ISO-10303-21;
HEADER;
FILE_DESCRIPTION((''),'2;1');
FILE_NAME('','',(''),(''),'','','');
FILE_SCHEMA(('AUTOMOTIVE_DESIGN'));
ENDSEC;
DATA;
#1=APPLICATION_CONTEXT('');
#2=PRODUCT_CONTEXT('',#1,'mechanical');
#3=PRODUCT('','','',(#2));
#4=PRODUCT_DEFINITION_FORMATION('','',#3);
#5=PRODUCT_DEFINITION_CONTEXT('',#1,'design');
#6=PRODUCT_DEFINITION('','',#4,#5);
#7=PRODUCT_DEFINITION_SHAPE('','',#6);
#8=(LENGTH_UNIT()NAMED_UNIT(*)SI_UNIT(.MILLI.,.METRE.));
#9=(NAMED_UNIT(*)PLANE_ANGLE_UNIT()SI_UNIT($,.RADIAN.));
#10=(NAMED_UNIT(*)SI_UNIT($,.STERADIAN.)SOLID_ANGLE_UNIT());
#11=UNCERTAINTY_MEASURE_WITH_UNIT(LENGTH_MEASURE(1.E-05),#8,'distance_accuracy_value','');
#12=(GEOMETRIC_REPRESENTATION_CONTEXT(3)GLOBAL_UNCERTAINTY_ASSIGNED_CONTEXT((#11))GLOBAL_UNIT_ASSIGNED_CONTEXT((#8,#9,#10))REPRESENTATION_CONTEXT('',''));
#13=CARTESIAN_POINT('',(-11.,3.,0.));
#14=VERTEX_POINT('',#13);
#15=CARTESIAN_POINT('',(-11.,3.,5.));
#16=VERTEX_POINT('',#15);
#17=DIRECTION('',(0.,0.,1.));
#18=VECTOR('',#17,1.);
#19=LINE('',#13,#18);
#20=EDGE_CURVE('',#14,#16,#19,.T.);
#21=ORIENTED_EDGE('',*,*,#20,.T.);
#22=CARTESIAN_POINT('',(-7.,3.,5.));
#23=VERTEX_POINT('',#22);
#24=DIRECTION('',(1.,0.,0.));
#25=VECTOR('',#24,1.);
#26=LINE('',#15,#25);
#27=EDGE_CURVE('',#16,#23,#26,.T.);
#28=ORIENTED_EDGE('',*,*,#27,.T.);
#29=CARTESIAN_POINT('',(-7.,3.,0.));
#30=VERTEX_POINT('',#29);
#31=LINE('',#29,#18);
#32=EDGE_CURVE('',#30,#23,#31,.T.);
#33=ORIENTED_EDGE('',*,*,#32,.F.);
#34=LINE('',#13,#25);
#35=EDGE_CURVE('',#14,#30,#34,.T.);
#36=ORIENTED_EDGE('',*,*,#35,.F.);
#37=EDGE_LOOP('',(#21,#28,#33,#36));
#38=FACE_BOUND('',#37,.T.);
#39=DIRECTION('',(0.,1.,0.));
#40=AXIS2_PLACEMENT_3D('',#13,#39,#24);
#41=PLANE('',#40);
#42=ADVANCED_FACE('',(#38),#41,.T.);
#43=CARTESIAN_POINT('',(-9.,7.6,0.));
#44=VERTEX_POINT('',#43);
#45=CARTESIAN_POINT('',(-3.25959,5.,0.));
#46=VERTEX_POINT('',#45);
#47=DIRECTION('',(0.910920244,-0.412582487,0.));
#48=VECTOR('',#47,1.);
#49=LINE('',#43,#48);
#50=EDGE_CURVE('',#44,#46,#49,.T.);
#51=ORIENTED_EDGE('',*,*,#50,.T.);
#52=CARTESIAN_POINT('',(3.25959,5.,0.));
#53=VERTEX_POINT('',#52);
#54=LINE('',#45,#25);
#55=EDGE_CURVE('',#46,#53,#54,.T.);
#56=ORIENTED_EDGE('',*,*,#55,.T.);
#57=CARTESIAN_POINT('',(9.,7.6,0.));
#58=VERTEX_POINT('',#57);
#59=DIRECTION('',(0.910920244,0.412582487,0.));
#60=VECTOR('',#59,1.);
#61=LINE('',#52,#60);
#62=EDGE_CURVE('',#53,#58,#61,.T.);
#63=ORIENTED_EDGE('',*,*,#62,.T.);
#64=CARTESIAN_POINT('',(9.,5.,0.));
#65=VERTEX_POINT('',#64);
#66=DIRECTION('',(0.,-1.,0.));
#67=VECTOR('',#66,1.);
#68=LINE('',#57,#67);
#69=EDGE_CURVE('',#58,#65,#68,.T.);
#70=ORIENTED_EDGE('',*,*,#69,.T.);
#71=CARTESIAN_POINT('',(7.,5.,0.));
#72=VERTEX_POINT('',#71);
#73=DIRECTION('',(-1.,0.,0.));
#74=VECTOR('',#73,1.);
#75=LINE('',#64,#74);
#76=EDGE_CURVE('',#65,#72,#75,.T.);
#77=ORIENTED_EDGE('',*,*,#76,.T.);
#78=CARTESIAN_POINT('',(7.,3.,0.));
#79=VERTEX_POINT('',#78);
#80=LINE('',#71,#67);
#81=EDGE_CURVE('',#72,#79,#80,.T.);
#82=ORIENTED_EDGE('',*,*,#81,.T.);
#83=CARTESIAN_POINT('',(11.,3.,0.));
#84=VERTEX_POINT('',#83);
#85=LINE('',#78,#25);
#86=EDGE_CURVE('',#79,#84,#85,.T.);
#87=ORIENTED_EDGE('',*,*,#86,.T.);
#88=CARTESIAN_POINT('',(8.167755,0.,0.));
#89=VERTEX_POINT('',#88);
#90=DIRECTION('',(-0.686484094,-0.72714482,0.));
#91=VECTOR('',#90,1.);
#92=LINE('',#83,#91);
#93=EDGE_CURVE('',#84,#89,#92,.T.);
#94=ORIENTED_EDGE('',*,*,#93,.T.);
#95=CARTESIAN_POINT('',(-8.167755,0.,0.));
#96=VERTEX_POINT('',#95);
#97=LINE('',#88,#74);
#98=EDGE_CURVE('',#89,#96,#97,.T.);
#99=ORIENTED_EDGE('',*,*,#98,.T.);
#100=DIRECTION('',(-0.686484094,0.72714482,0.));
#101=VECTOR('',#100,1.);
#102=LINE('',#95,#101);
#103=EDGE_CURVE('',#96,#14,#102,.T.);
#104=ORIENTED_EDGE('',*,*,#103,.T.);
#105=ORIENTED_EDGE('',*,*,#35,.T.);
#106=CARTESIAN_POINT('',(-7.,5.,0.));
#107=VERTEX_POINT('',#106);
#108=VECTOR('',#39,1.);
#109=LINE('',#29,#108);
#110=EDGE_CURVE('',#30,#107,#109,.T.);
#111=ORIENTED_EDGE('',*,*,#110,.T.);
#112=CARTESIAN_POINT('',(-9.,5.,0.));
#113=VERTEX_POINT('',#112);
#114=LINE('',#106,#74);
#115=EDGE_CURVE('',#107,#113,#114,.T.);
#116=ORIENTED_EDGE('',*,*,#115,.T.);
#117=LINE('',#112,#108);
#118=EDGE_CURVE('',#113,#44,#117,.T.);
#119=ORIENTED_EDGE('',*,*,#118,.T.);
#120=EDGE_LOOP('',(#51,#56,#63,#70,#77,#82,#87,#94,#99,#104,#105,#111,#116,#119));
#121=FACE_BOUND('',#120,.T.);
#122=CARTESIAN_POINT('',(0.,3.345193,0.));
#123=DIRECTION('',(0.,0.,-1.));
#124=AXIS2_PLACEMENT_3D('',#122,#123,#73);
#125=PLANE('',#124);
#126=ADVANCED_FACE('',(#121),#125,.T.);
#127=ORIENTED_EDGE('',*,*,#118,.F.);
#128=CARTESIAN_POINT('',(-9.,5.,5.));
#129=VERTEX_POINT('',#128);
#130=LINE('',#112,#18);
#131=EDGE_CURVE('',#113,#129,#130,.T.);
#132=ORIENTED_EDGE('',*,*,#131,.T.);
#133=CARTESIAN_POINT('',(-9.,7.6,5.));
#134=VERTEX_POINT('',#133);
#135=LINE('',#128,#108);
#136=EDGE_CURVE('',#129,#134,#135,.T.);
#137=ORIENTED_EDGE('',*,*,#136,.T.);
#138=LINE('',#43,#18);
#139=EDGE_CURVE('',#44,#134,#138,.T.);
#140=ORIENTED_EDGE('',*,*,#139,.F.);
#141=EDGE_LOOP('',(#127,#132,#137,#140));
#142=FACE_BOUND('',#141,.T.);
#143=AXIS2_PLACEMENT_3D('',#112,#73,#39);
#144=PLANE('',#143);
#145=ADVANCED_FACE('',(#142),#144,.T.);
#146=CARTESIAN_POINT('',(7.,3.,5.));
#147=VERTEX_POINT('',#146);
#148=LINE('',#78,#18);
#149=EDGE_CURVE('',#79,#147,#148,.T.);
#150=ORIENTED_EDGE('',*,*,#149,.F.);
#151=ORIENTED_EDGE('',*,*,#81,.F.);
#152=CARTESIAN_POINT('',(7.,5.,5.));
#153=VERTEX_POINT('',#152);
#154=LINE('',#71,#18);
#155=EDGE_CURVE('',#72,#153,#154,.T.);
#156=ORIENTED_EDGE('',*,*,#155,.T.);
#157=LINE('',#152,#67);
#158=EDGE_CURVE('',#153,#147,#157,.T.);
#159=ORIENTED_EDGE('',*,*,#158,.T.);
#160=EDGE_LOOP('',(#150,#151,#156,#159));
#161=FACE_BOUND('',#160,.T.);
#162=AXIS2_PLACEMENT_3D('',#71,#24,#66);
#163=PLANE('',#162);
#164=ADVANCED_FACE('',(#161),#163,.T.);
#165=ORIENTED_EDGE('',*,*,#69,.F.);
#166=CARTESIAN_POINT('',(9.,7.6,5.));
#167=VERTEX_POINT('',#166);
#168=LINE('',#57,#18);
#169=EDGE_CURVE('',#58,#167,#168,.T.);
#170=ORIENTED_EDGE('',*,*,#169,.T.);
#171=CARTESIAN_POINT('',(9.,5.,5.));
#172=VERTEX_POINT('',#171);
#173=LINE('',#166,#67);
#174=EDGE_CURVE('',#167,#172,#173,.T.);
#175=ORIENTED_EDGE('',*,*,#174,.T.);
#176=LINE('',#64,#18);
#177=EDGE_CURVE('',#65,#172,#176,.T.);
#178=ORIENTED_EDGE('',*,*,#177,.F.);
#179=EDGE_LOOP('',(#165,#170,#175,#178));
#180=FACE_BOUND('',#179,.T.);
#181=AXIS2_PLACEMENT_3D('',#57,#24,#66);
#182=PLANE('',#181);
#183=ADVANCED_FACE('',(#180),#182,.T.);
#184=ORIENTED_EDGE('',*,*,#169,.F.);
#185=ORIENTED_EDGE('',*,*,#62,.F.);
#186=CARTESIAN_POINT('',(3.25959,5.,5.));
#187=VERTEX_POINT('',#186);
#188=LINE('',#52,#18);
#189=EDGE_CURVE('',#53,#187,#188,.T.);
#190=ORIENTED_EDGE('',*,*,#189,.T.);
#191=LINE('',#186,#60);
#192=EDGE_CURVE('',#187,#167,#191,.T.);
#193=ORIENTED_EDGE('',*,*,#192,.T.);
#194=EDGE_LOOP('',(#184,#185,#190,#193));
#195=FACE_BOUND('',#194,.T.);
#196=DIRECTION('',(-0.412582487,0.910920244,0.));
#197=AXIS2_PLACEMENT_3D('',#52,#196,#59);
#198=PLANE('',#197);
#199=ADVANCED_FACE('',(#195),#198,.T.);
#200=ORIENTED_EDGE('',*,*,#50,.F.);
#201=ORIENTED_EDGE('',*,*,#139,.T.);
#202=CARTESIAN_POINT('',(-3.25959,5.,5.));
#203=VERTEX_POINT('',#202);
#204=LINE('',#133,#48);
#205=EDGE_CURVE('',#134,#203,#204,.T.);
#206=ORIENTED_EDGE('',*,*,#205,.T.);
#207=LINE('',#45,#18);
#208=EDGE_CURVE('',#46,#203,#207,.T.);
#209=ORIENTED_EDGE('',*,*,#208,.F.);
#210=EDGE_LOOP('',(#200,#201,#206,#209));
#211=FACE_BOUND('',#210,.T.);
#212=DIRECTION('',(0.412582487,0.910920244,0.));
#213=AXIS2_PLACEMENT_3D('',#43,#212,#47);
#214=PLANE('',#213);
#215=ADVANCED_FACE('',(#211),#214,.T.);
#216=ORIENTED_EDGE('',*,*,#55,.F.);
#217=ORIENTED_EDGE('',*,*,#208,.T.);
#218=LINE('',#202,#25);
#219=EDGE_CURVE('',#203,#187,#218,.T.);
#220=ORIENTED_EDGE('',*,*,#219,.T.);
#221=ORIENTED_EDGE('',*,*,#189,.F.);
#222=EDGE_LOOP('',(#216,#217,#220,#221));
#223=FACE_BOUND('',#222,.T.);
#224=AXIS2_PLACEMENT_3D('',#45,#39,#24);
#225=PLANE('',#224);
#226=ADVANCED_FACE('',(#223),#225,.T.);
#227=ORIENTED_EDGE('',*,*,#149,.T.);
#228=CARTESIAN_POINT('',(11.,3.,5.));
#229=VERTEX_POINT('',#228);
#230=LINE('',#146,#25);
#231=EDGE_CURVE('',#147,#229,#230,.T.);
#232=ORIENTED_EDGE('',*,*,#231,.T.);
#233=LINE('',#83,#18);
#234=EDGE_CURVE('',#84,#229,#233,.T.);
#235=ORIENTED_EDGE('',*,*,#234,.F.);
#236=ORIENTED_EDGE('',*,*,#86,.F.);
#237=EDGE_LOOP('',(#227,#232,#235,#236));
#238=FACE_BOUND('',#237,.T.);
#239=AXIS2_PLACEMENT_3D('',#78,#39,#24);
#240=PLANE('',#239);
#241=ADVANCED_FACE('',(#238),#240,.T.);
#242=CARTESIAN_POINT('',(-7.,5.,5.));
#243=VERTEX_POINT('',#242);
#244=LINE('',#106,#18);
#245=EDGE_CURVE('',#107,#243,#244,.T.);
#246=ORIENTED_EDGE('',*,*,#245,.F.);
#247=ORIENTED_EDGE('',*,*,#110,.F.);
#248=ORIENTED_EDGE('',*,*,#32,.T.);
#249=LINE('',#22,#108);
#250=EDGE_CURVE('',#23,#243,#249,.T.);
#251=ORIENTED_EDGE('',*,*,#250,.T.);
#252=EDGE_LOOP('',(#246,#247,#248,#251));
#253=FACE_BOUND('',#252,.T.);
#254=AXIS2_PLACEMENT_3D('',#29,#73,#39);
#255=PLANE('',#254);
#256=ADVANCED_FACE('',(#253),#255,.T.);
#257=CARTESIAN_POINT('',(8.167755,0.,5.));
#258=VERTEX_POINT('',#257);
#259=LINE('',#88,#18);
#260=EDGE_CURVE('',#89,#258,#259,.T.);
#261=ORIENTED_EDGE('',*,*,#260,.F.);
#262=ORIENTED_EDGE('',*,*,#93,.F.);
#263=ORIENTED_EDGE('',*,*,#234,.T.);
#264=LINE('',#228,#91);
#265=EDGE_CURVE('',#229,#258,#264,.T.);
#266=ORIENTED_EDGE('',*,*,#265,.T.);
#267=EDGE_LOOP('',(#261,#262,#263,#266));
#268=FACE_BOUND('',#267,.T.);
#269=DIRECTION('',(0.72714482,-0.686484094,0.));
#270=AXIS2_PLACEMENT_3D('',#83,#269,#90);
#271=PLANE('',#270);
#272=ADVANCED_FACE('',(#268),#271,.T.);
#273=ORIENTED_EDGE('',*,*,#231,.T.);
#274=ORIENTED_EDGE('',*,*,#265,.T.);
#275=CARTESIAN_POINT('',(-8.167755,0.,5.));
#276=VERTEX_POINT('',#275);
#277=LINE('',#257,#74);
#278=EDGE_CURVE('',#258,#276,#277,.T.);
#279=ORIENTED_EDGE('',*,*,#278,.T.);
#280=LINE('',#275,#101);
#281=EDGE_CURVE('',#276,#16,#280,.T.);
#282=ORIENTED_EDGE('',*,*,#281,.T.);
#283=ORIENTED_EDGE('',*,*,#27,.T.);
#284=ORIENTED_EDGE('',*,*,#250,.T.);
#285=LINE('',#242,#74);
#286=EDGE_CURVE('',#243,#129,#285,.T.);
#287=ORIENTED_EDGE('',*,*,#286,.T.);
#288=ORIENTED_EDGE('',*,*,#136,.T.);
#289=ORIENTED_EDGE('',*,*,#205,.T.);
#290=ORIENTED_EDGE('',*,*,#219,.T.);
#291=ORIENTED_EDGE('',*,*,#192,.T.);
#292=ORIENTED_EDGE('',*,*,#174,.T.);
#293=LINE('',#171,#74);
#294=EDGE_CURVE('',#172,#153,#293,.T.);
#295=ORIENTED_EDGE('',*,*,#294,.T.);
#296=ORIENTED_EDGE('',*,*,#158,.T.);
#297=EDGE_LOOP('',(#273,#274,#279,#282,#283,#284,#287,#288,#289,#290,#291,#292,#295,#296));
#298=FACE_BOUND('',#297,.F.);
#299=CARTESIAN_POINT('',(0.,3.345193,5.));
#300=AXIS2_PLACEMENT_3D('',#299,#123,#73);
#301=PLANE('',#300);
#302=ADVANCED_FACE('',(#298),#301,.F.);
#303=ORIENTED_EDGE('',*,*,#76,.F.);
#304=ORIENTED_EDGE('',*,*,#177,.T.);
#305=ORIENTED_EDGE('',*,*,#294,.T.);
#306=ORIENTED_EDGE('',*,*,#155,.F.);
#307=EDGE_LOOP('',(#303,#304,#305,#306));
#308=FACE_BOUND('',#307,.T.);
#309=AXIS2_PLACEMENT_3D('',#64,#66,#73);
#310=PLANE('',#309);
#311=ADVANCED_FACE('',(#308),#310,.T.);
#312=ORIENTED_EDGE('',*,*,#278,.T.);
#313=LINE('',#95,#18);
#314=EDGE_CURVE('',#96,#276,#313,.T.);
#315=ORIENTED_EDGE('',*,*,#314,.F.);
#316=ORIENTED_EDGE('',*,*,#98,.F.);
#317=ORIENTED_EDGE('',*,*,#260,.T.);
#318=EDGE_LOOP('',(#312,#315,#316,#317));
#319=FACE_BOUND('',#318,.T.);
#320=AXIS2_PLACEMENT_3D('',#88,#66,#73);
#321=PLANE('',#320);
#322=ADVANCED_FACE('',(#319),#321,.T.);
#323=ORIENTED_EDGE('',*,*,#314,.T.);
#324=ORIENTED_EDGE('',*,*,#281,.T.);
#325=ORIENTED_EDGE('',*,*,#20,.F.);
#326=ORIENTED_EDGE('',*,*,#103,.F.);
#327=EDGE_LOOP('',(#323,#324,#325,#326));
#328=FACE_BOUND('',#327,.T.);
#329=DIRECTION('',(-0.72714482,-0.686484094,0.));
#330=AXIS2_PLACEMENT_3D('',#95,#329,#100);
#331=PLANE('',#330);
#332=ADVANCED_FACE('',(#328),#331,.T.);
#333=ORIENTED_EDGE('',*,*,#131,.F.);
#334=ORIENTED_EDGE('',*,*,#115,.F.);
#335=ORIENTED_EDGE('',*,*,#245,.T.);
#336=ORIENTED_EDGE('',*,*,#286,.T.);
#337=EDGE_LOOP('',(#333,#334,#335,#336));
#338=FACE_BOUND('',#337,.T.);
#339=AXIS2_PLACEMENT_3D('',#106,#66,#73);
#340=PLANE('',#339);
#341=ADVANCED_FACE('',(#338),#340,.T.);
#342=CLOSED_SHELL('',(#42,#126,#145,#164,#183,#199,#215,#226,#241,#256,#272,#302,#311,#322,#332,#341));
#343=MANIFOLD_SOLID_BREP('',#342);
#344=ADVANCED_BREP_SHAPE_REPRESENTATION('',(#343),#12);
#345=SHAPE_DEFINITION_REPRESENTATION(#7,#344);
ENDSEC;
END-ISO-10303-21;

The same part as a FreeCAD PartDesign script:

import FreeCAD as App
import Part
import Sketcher
Q = App.Units.Quantity

doc = App.newDocument("Part")
body = doc.addObject("PartDesign::Body", "Body")

# Sketch on XY plane
sketch1 = doc.addObject("Sketcher::SketchObject", "Sketch")
body.addObject(sketch1)
sketch1.AttachmentSupport = (doc.XY_Plane, [""])
sketch1.MapMode = "FlatFace"
sketch1.addGeometry([
    Part.LineSegment(App.Vector(9, 5, 0), App.Vector(9, 7.6, 0)),  # 0
    Part.LineSegment(App.Vector(9, 7.6, 0), App.Vector(3.25959, 5, 0)),  # 1
    Part.LineSegment(App.Vector(3.25959, 5, 0), App.Vector(-3.25959, 5, 0)),  # 2
    Part.LineSegment(App.Vector(-3.25959, 5, 0), App.Vector(-9, 7.6, 0)),  # 3
    Part.LineSegment(App.Vector(-9, 7.6, 0), App.Vector(-9, 5, 0)),  # 4
    Part.LineSegment(App.Vector(-9, 5, 0), App.Vector(-7, 5, 0)),  # 5
    Part.LineSegment(App.Vector(-7, 5, 0), App.Vector(-7, 3, 0)),  # 6
    Part.LineSegment(App.Vector(-7, 3, 0), App.Vector(-11, 3, 0)),  # 7
    Part.LineSegment(App.Vector(-11, 3, 0), App.Vector(-8.167755, 0, 0)),  # 8
    Part.LineSegment(App.Vector(-8.167755, 0, 0), App.Vector(8.167755, 0, 0)),  # 9
    Part.LineSegment(App.Vector(8.167755, 0, 0), App.Vector(11, 3, 0)),  # 10
    Part.LineSegment(App.Vector(11, 3, 0), App.Vector(7, 3, 0)),  # 11
    Part.LineSegment(App.Vector(7, 3, 0), App.Vector(7, 5, 0)),  # 12
    Part.LineSegment(App.Vector(7, 5, 0), App.Vector(9, 5, 0)),  # 13
], False)
sketch1.addConstraint([
    Sketcher.Constraint("Coincident", 0, 2, 1, 1),
    Sketcher.Constraint("Coincident", 1, 2, 2, 1),
    Sketcher.Constraint("Coincident", 2, 2, 3, 1),
    Sketcher.Constraint("Coincident", 3, 2, 4, 1),
    Sketcher.Constraint("Coincident", 4, 2, 5, 1),
    Sketcher.Constraint("Coincident", 5, 2, 6, 1),
    Sketcher.Constraint("Coincident", 6, 2, 7, 1),
    Sketcher.Constraint("Coincident", 7, 2, 8, 1),
    Sketcher.Constraint("Coincident", 8, 2, 9, 1),
    Sketcher.Constraint("Coincident", 9, 2, 10, 1),
    Sketcher.Constraint("Coincident", 10, 2, 11, 1),
    Sketcher.Constraint("Coincident", 11, 2, 12, 1),
    Sketcher.Constraint("Coincident", 12, 2, 13, 1),
    Sketcher.Constraint("Coincident", 13, 2, 0, 1),
    Sketcher.Constraint("Vertical", 0),
    Sketcher.Constraint("Horizontal", 2),
    Sketcher.Constraint("Vertical", 4),
    Sketcher.Constraint("Horizontal", 5),
    Sketcher.Constraint("Vertical", 6),
    Sketcher.Constraint("Horizontal", 7),
    Sketcher.Constraint("Horizontal", 9),
    Sketcher.Constraint("Horizontal", 11),
    Sketcher.Constraint("Vertical", 12),
    Sketcher.Constraint("Horizontal", 13),
    Sketcher.Constraint("Symmetric", 8, 2, 9, 2, -1, 1),
    Sketcher.Constraint("Symmetric", 0, 2, 3, 2, -2),
    Sketcher.Constraint("Symmetric", 7, 2, 10, 2, -2),
    Sketcher.Constraint("Symmetric", 5, 2, 12, 2, -2),
    Sketcher.Constraint("Horizontal", 2, 2, 4, 2),
    Sketcher.Constraint("Equal", 13, 6),
    Sketcher.Constraint("Equal", 1, 3),
    Sketcher.Constraint("DistanceX", 5, 1, 5, 2, Q("2 mm")),
    Sketcher.Constraint("DistanceX", 7, 2, 7, 1, Q("4 mm")),
    Sketcher.Constraint("DistanceY", 0, 1, 0, 2, Q("2.6 mm")),
    Sketcher.Constraint("DistanceX", -1, 1, 0, 2, Q("9 mm")),
    Sketcher.Constraint("DistanceY", -1, 1, 1, 2, Q("5 mm")),
    Sketcher.Constraint("DistanceX", 2, 2, 2, 1, Q("6.51918 mm")),
    Sketcher.Constraint("DistanceX", 9, 1, 9, 2, Q("16.33551 mm")),
])
pad1 = doc.addObject("PartDesign::Pad", "Pad")
body.addObject(pad1)
pad1.Profile = sketch1
pad1.Length = 5

doc.recompute()
